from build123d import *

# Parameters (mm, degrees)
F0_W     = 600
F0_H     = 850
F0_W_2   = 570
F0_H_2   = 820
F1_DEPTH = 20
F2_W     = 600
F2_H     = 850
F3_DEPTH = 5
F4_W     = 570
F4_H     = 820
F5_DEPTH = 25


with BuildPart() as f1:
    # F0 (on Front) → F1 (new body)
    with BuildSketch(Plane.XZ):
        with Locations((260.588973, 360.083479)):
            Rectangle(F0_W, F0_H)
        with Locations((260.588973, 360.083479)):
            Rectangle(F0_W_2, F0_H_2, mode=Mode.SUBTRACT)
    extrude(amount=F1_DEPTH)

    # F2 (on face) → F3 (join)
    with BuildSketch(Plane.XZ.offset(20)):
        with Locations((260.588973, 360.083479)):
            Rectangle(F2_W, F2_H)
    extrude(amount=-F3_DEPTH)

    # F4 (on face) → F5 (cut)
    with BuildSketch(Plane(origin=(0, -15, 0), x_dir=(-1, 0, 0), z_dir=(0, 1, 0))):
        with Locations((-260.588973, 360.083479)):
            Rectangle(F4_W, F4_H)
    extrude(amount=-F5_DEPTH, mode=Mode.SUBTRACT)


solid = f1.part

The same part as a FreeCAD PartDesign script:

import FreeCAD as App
import Part
import Sketcher

V = App.Vector

doc = App.newDocument("Part")
body = doc.addObject("PartDesign::Body", "Body")

sketch1 = doc.addObject("Sketcher::SketchObject", "Sketch")
body.addObject(sketch1)
sketch1.AttachmentSupport = (doc.XZ_Plane, [""])
sketch1.MapMode = "FlatFace"
sketch1.addGeometry([
    Part.LineSegment(V(-39, 785, 0), V(-39, -65, 0)),
    Part.LineSegment(V(-39, -65, 0), V(561, -65, 0)),
    Part.LineSegment(V(561, -65, 0), V(561, 785, 0)),
    Part.LineSegment(V(561, 785, 0), V(-39, 785, 0)),
    Part.LineSegment(V(546, -50, 0), V(-24, -50, 0)),
    Part.LineSegment(V(-24, -50, 0), V(-24, 770, 0)),
    Part.LineSegment(V(-24, 770, 0), V(546, 770, 0)),
    Part.LineSegment(V(546, 770, 0), V(546, -50, 0)),
], False)
sketch1.addConstraint([
    Sketcher.Constraint("Coincident", 0, 2, 1, 1),
    Sketcher.Constraint("Coincident", 1, 2, 2, 1),
    Sketcher.Constraint("Coincident", 2, 2, 3, 1),
    Sketcher.Constraint("Coincident", 3, 2, 0, 1),
    Sketcher.Constraint("Coincident", 4, 2, 5, 1),
    Sketcher.Constraint("Coincident", 5, 2, 6, 1),
    Sketcher.Constraint("Coincident", 6, 2, 7, 1),
    Sketcher.Constraint("Coincident", 7, 2, 4, 1),
    Sketcher.Constraint("Vertical", 0),
    Sketcher.Constraint("Horizontal", 1),
    Sketcher.Constraint("Vertical", 2),
    Sketcher.Constraint("Horizontal", 3),
    Sketcher.Constraint("Horizontal", 4),
    Sketcher.Constraint("Vertical", 5),
    Sketcher.Constraint("Horizontal", 6),
    Sketcher.Constraint("Vertical", 7),
    Sketcher.Constraint("DistanceX", 1, 1, 1, 2, 600.0),
    Sketcher.Constraint("DistanceX", 4, 2, 4, 1, 570.0),
    Sketcher.Constraint("DistanceY", 0, 2, 0, 1, 850.0),
    Sketcher.Constraint("DistanceY", 5, 1, 5, 2, 820.0),
    Sketcher.Constraint("DistanceX", 0, 2, 4, 2, 15.0),
    Sketcher.Constraint("DistanceY", 0, 2, 4, 2, 15.0),
    Sketcher.Constraint("DistanceY", 0, 2, -1, 1, 64.916521),
    Sketcher.Constraint("DistanceX", 0, 2, -1, 1, 39.411027),
])
pad1 = doc.addObject("PartDesign::Pad", "Pad")
body.addObject(pad1)
pad1.Profile = sketch1
pad1.Length = 20

sketch2 = doc.addObject("Sketcher::SketchObject", "Sketch001")
body.addObject(sketch2)
sketch2.AttachmentSupport = (doc.XZ_Plane, [""])
sketch2.MapMode = "FlatFace"
sketch2.AttachmentOffset = App.Placement(V(0, 0, 20), App.Rotation())
sketch2.addGeometry([
    Part.LineSegment(V(-39, 785, 0), V(-39, -65, 0)),
    Part.LineSegment(V(-39, -65, 0), V(561, -65, 0)),
    Part.LineSegment(V(561, -65, 0), V(561, 785, 0)),
    Part.LineSegment(V(561, 785, 0), V(-39, 785, 0)),
], False)
sketch2.addConstraint([
    Sketcher.Constraint("Coincident", 0, 2, 1, 1),
    Sketcher.Constraint("Coincident", 1, 2, 2, 1),
    Sketcher.Constraint("Coincident", 2, 2, 3, 1),
    Sketcher.Constraint("Coincident", 3, 2, 0, 1),
    Sketcher.Constraint("Vertical", 0),
    Sketcher.Constraint("Horizontal", 1),
    Sketcher.Constraint("Vertical", 2),
    Sketcher.Constraint("Horizontal", 3),
    Sketcher.Constraint("DistanceX", 1, 1, 1, 2, 600.0),
    Sketcher.Constraint("DistanceY", 0, 2, 0, 1, 850.0),
    Sketcher.Constraint("DistanceY", 0, 2, -1, 1, 64.916521),
    Sketcher.Constraint("DistanceX", 0, 2, -1, 1, 39.411027),
])
pad2 = doc.addObject("PartDesign::Pad", "Pad001")
body.addObject(pad2)
pad2.Profile = sketch2
pad2.Length = 5
pad2.Reversed = True

sketch3 = doc.addObject("Sketcher::SketchObject", "Sketch002")
body.addObject(sketch3)
sketch3.AttachmentSupport = (doc.XZ_Plane, [""])
sketch3.MapMode = "FlatFace"
sketch3.AttachmentOffset = App.Placement(V(0, 0, 15), App.Rotation())
sketch3.addGeometry([
    Part.LineSegment(V(546, 770, 0), V(546, -50, 0)),
    Part.LineSegment(V(546, -50, 0), V(-24, -50, 0)),
    Part.LineSegment(V(-24, -50, 0), V(-24, 770, 0)),
    Part.LineSegment(V(-24, 770, 0), V(546, 770, 0)),
], False)
sketch3.addConstraint([
    Sketcher.Constraint("Coincident", 0, 2, 1, 1),
    Sketcher.Constraint("Coincident", 1, 2, 2, 1),
    Sketcher.Constraint("Coincident", 2, 2, 3, 1),
    Sketcher.Constraint("Coincident", 3, 2, 0, 1),
    Sketcher.Constraint("Vertical", 0),
    Sketcher.Constraint("Horizontal", 1),
    Sketcher.Constraint("Vertical", 2),
    Sketcher.Constraint("Horizontal", 3),
    Sketcher.Constraint("DistanceX", 1, 2, 1, 1, 570.0),
    Sketcher.Constraint("DistanceY", 0, 2, 0, 1, 820.0),
    Sketcher.Constraint("DistanceY", 0, 2, -1, 1, 49.916521),
    Sketcher.Constraint("DistanceX", -1, 1, 0, 2, 545.588973),
])
pocket1 = doc.addObject("PartDesign::Pocket", "Pocket")
body.addObject(pocket1)
pocket1.Profile = sketch3
pocket1.Length = 25
pocket1.Reversed = True

doc.recompute()
